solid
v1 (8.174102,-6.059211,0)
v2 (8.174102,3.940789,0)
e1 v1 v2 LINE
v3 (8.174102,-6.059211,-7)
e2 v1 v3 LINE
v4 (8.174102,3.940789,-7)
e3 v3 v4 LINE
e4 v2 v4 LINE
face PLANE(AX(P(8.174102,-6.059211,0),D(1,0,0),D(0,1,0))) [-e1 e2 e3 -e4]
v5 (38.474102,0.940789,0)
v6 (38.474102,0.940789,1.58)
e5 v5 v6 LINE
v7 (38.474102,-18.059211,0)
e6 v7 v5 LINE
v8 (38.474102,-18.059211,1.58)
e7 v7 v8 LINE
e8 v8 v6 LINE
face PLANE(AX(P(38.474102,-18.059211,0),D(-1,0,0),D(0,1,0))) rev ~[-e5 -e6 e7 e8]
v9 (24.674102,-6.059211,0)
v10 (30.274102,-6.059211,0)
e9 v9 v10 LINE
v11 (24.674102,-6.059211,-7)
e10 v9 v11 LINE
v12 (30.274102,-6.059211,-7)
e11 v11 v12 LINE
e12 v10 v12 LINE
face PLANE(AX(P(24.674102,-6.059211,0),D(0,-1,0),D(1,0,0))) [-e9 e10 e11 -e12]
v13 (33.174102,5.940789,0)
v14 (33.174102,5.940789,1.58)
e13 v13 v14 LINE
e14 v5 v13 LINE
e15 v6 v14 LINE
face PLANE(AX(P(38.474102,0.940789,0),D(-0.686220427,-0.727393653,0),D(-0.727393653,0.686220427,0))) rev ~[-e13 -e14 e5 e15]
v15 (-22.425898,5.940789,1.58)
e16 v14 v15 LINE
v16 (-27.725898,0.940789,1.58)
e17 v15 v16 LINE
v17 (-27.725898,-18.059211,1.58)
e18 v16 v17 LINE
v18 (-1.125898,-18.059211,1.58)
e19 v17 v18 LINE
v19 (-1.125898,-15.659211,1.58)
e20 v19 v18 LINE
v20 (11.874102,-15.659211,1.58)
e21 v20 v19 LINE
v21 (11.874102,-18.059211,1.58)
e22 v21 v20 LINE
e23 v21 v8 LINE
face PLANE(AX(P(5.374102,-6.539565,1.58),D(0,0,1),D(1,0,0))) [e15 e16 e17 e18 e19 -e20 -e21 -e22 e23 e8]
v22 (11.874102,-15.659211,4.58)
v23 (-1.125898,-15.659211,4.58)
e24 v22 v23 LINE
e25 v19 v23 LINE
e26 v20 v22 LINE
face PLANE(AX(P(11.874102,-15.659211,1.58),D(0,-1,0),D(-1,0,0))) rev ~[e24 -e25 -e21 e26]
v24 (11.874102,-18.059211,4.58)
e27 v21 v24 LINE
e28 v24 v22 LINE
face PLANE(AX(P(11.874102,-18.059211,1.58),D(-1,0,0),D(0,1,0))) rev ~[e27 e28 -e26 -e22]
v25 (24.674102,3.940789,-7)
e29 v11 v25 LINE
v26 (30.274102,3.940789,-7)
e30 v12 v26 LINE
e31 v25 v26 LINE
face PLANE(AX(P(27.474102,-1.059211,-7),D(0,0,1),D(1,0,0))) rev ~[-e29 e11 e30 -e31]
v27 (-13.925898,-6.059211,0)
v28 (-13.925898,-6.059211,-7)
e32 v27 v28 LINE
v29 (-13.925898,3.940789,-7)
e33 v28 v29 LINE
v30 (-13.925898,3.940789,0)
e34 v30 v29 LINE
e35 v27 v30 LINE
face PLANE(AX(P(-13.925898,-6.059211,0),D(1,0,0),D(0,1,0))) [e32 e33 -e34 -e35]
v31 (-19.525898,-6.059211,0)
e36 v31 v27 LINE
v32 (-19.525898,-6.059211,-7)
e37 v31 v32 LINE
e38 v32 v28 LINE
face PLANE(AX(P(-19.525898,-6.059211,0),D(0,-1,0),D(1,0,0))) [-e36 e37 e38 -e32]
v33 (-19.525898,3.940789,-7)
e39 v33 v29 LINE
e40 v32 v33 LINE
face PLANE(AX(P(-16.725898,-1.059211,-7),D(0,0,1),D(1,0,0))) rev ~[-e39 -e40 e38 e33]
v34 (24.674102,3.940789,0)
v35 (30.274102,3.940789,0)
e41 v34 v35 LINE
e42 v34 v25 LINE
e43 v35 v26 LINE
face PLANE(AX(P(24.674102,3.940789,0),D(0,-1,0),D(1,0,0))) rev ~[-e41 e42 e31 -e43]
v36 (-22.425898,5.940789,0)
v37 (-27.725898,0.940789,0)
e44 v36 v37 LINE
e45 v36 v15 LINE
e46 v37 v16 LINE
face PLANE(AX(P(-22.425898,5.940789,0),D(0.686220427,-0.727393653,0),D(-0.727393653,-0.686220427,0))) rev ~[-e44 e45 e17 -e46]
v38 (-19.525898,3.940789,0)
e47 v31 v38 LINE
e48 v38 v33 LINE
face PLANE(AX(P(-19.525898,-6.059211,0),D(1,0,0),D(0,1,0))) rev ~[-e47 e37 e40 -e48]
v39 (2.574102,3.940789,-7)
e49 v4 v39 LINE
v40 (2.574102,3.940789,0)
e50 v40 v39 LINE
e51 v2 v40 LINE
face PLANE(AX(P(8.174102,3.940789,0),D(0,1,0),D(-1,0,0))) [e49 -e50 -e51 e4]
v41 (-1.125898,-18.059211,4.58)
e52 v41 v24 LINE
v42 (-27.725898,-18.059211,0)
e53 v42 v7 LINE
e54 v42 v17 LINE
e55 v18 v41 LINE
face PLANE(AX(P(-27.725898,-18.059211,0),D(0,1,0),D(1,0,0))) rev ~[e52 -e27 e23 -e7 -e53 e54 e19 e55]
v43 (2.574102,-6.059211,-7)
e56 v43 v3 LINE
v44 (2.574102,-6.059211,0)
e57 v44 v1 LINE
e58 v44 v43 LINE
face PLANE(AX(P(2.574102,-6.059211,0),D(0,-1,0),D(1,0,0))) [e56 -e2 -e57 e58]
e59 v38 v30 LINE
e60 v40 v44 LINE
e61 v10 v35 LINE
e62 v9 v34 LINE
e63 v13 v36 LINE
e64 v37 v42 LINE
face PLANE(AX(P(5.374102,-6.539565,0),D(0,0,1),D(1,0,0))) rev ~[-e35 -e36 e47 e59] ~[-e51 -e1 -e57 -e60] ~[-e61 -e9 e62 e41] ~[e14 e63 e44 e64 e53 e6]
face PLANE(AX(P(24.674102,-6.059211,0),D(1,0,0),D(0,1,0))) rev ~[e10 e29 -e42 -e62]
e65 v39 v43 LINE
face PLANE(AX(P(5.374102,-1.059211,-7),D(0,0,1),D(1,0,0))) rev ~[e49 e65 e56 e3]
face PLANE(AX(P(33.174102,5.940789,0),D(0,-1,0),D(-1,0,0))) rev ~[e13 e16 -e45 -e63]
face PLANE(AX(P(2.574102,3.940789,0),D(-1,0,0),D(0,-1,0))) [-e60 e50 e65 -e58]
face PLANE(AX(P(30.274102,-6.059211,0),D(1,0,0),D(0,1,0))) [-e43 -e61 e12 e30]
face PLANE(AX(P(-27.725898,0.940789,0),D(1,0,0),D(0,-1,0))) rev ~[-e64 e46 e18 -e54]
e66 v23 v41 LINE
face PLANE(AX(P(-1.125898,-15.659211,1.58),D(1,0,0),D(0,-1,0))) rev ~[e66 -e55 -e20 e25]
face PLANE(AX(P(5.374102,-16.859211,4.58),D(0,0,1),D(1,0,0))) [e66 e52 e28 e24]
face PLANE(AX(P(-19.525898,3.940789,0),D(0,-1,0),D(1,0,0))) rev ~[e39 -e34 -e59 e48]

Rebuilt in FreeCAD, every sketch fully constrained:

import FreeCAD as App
import Part
import Sketcher
from FreeCAD import Vector


def add_polygon(sketch, points):
    """Adds a closed chain of lines whose ends are joined by coincident constraints."""
    first, n = sketch.GeometryCount, len(points)
    for a, b in zip(points, points[1:] + points[:1]):
        sketch.addGeometry(Part.LineSegment(App.Vector(*a, 0), App.Vector(*b, 0)), False)
    for i in range(n):
        sketch.addConstraint(Sketcher.Constraint("Coincident", first + i, 2, first + (i + 1) % n, 1))

doc = App.newDocument("Part")
body = doc.addObject("PartDesign::Body", "Body")
body.AllowCompound = True

sketch1 = body.newObject("Sketcher::SketchObject", "Sketch")
sketch1.AttachmentSupport = (doc.getObject("XY_Plane"), [""])
sketch1.MapMode = "FlatFace"
add_polygon(sketch1, [(-20, 4), (-20, -6), (-14, -6), (-14, 4)])
add_polygon(sketch1, [(8, 4), (3, 4), (3, -6), (8, -6)])
add_polygon(sketch1, [(25, 4), (25, -6), (30, -6), (30, 4)])
sketch1.addConstraint(Sketcher.Constraint("Vertical", 0))
sketch1.addConstraint(Sketcher.Constraint("Horizontal", 1))
sketch1.addConstraint(Sketcher.Constraint("Vertical", 2))
sketch1.addConstraint(Sketcher.Constraint("Horizontal", 3))
sketch1.addConstraint(Sketcher.Constraint("Horizontal", 4))
sketch1.addConstraint(Sketcher.Constraint("Vertical", 5))
sketch1.addConstraint(Sketcher.Constraint("Horizontal", 6))
sketch1.addConstraint(Sketcher.Constraint("Vertical", 7))
sketch1.addConstraint(Sketcher.Constraint("Vertical", 8))
sketch1.addConstraint(Sketcher.Constraint("Horizontal", 9))
sketch1.addConstraint(Sketcher.Constraint("Vertical", 10))
sketch1.addConstraint(Sketcher.Constraint("Horizontal", 11))
sketch1.addConstraint(Sketcher.Constraint("Horizontal", 3, 2, 4, 2))
sketch1.addConstraint(Sketcher.Constraint("Horizontal", 1, 2, 5, 2))
sketch1.addConstraint(Sketcher.Constraint("Horizontal", 6, 2, 8, 2))
sketch1.addConstraint(Sketcher.Constraint("Horizontal", 7, 2, 10, 2))
sketch1.addConstraint(Sketcher.Constraint("Equal", 3, 4))
sketch1.addConstraint(Sketcher.Constraint("Equal", 6, 9))
sketch1.addConstraint(Sketcher.Constraint("DistanceY", 0, 2, 0, 1, 10.0))
sketch1.addConstraint(Sketcher.Constraint("DistanceX", 1, 1, 1, 2, 5.6))
sketch1.addConstraint(Sketcher.Constraint("DistanceX", 2, 2, 4, 2, 16.5))
sketch1.addConstraint(Sketcher.Constraint("DistanceX", 6, 2, 8, 2, 16.5))
sketch1.addConstraint(Sketcher.Constraint("DistanceX", 0, 2, -1, 1, 19.525898))
sketch1.addConstraint(Sketcher.Constraint("DistanceY", 0, 2, -1, 1, 6.059211))
pad1 = body.newObject("PartDesign::Pad", "Pad")
pad1.Profile = sketch1
pad1.Length = 7
pad1.Reversed = True

sketch2 = body.newObject("Sketcher::SketchObject", "Sketch001")
sketch2.AttachmentSupport = (doc.getObject("XY_Plane"), [""])
sketch2.MapMode = "FlatFace"
add_polygon(sketch2, [(33, 6), (-22, 6), (-28, 1), (-28, -18), (38, -18), (38, 1)])
sketch2.addConstraint(Sketcher.Constraint("Horizontal", 0))
sketch2.addConstraint(Sketcher.Constraint("Vertical", 2))
sketch2.addConstraint(Sketcher.Constraint("Horizontal", 3))
sketch2.addConstraint(Sketcher.Constraint("Vertical", 4))
sketch2.addConstraint(Sketcher.Constraint("Horizontal", 1, 2, 4, 2))
sketch2.addConstraint(Sketcher.Constraint("Equal", 1, 5))
sketch2.addConstraint(Sketcher.Constraint("DistanceY", 2, 2, 2, 1, 19.0))
sketch2.addConstraint(Sketcher.Constraint("DistanceX", 0, 2, 0, 1, 55.6))
sketch2.addConstraint(Sketcher.Constraint("DistanceX", 3, 1, 3, 2, 66.2))
sketch2.addConstraint(Sketcher.Constraint("DistanceY", 1, 2, 0, 2, 5.0))
sketch2.addConstraint(Sketcher.Constraint("DistanceX", 0, 2, -1, 1, 22.425898))
sketch2.addConstraint(Sketcher.Constraint("DistanceY", -1, 1, 0, 2, 5.940789))
pad2 = body.newObject("PartDesign::Pad", "Pad001")
pad2.Profile = sketch2
pad2.Length = 1.58

sketch3 = body.newObject("Sketcher::SketchObject", "Sketch002")
sketch3.AttachmentSupport = (doc.getObject("XY_Plane"), [""])
sketch3.MapMode = "FlatFace"
sketch3.AttachmentOffset = App.Placement(Vector(0, 0, 1.58), App.Rotation())
add_polygon(sketch3, [(-1.1, -18.1), (11.9, -18.1), (11.9, -15.7), (-1.1, -15.7)])
sketch3.addConstraint(Sketcher.Constraint("Horizontal", 0))
sketch3.addConstraint(Sketcher.Constraint("Vertical", 1))
sketch3.addConstraint(Sketcher.Constraint("Horizontal", 2))
sketch3.addConstraint(Sketcher.Constraint("Vertical", 3))
sketch3.addConstraint(Sketcher.Constraint("DistanceX", 0, 1, 0, 2, 13.0))
sketch3.addConstraint(Sketcher.Constraint("DistanceY", 1, 1, 1, 2, 2.4))
sketch3.addConstraint(Sketcher.Constraint("DistanceX", 2, 2, -1, 1, 1.125898))
sketch3.addConstraint(Sketcher.Constraint("DistanceY", 0, 2, -1, 1, 18.059211))
pad3 = body.newObject("PartDesign::Pad", "Pad002")
pad3.Profile = sketch3
pad3.Length = 3

doc.recompute()
